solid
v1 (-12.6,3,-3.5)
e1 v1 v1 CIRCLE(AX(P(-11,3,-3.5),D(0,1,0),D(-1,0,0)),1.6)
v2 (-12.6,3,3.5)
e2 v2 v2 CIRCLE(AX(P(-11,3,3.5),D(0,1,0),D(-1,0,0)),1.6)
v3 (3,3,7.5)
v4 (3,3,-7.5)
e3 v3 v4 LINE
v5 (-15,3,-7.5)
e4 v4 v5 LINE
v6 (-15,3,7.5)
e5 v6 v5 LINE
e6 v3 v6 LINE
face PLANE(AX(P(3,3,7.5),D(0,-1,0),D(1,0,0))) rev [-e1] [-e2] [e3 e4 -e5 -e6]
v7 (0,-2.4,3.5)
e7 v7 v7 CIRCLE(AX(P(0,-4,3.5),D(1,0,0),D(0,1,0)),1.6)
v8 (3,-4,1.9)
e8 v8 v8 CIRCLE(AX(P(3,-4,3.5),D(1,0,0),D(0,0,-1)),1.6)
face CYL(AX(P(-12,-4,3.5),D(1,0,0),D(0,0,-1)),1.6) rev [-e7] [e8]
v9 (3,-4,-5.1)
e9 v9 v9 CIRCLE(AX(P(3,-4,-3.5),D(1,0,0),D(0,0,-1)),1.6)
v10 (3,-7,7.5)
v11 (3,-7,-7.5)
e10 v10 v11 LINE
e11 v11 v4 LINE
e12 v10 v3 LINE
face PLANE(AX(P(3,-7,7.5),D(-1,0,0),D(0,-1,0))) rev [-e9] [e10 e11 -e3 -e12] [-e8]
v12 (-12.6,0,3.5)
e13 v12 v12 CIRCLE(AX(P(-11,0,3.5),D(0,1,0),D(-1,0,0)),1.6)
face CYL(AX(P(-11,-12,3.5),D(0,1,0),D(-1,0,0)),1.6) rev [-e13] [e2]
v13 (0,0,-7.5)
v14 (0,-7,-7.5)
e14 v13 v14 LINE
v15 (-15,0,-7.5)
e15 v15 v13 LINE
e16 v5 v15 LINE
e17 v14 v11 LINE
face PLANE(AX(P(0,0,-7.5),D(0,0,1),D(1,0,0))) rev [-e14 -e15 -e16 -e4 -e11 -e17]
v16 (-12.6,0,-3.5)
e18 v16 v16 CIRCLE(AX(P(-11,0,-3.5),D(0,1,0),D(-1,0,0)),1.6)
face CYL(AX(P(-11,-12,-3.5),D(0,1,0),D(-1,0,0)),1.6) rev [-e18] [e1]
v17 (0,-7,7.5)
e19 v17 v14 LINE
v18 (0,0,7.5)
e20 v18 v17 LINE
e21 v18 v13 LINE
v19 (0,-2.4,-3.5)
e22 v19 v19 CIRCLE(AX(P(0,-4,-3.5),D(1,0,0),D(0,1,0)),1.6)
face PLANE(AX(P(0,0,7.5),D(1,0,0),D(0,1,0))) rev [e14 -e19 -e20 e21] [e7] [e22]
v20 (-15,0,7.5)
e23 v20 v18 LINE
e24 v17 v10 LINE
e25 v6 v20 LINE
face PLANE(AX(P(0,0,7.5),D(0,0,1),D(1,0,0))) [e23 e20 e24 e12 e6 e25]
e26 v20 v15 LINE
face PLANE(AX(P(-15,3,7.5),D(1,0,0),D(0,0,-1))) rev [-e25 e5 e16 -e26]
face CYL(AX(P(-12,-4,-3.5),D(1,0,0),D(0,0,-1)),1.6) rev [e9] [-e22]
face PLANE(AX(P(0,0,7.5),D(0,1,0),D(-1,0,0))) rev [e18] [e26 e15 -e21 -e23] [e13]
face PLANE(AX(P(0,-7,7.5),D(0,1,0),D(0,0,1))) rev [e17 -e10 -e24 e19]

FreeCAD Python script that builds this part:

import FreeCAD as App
import Part
import Sketcher


def add_polygon(sketch, points):
    """Adds a closed chain of lines whose ends are joined by coincident constraints."""
    first, n = sketch.GeometryCount, len(points)
    for a, b in zip(points, points[1:] + points[:1]):
        sketch.addGeometry(Part.LineSegment(App.Vector(*a, 0), App.Vector(*b, 0)), False)
    for i in range(n):
        sketch.addConstraint(Sketcher.Constraint("Coincident", first + i, 2, first + (i + 1) % n, 1))

doc = App.newDocument("Part")
body = doc.addObject("PartDesign::Body", "Body")

# Sketch on XY plane
sketch1 = doc.addObject("Sketcher::SketchObject", "Sketch")
body.addObject(sketch1)
sketch1.AttachmentSupport = (doc.XY_Plane, [""])
sketch1.MapMode = "FlatFace"
add_polygon(sketch1, [(-15, 0), (0, 0), (0, -7), (3, -7), (3, 3), (-15, 3)])  # lines 0-5
sketch1.addConstraint([
    Sketcher.Constraint("Horizontal", 0),
    Sketcher.Constraint("Vertical", 1),
    Sketcher.Constraint("Horizontal", 2),
    Sketcher.Constraint("Vertical", 3),
    Sketcher.Constraint("Horizontal", 4),
    Sketcher.Constraint("Vertical", 5),
    Sketcher.Constraint("Coincident", 0, 2, -1, 1),
    Sketcher.Constraint("Equal", 2, 5),
    Sketcher.Constraint("DistanceX", 0, 1, 0, 2, 15.0),
    Sketcher.Constraint("DistanceX", 2, 1, 2, 2, 3.0),
    Sketcher.Constraint("DistanceY", 1, 2, 1, 1, 7.0),
])
pad1 = doc.addObject("PartDesign::Pad", "Pad")
body.addObject(pad1)
pad1.Profile = sketch1
pad1.Length = 15
pad1.Midplane = True

# Sketch on XZ plane
sketch2 = doc.addObject("Sketcher::SketchObject", "Sketch001")
body.addObject(sketch2)
sketch2.AttachmentSupport = (doc.XZ_Plane, [""])
sketch2.MapMode = "FlatFace"
sketch2.AttachmentOffset = App.Placement(App.Vector(0, 0, -3), App.Rotation())
sketch2.addGeometry([
    Part.Circle(App.Vector(-11, -3.5, 0), App.Vector(0, 0, 1), 1.6),
    Part.Circle(App.Vector(-11, 3.5, 0), App.Vector(0, 0, 1), 1.6),
], False)
sketch2.addConstraint([
    Sketcher.Constraint("Equal", 0, 1),
    Sketcher.Constraint("Symmetric", 0, 3, 1, 3, -1),
    Sketcher.Constraint("Diameter", 0, 3.2),
    Sketcher.Constraint("DistanceX", 0, 3, -1, 1, 11.0),
    Sketcher.Constraint("DistanceY", 0, 3, 1, 3, 7.0),
])
pocket1 = doc.addObject("PartDesign::Pocket", "Pocket")
body.addObject(pocket1)
pocket1.Profile = sketch2
pocket1.Length = 15
pocket1.Reversed = True

# Sketch on YZ plane
sketch3 = doc.addObject("Sketcher::SketchObject", "Sketch002")
body.addObject(sketch3)
sketch3.AttachmentSupport = (doc.YZ_Plane, [""])
sketch3.MapMode = "FlatFace"
sketch3.AttachmentOffset = App.Placement(App.Vector(0, 0, 3), App.Rotation())
sketch3.addGeometry([
    Part.Circle(App.Vector(-4, 3.5, 0), App.Vector(0, 0, 1), 1.6),
    Part.Circle(App.Vector(-4, -3.5, 0), App.Vector(0, 0, 1), 1.6),
], False)
sketch3.addConstraint([
    Sketcher.Constraint("Equal", 0, 1),
    Sketcher.Constraint("Symmetric", 0, 3, 1, 3, -1),
    Sketcher.Constraint("Diameter", 0, 3.2),
    Sketcher.Constraint("DistanceX", 0, 3, -1, 1, 4.0),
    Sketcher.Constraint("DistanceY", 1, 3, 0, 3, 7.0),
])
pocket2 = doc.addObject("PartDesign::Pocket", "Pocket001")
body.addObject(pocket2)
pocket2.Profile = sketch3
pocket2.Length = 15

doc.recompute()
